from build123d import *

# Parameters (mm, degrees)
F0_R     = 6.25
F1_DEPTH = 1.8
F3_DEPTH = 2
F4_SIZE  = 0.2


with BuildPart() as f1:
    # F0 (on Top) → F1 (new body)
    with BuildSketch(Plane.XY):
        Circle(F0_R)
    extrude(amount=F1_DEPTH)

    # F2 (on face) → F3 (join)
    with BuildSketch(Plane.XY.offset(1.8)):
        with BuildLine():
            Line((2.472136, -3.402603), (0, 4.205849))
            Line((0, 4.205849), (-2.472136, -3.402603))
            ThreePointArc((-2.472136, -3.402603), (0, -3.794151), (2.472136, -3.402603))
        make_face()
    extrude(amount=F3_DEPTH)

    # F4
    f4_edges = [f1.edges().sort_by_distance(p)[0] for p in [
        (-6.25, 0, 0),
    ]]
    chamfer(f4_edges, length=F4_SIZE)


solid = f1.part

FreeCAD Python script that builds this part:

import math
import FreeCAD as App
import Part
import Sketcher

V = App.Vector
Q = App.Units.Quantity


def edges_at(feature, points):
    """Names of the edges that pass closest to the given points."""
    edges = feature.Shape.Edges
    near = lambda p: min(range(len(edges)), key=lambda i: edges[i].distToShape(Part.Vertex(*p))[0])
    return sorted({f"Edge{near(p) + 1}" for p in points})

doc = App.newDocument("Part")
body = doc.addObject("PartDesign::Body", "Body")

# Sketch on XY plane
sketch1 = body.newObject("Sketcher::SketchObject", "Sketch")
sketch1.AttachmentSupport = (doc.getObject("XY_Plane"), [""])
sketch1.MapMode = "FlatFace"
sketch1.addGeometry(Part.Circle(V(0, 0, 0), V(0, 0, 1), 6), False)
sketch1.addConstraint([
    Sketcher.Constraint("Coincident", 0, 3, -1, 1),
    Sketcher.Constraint("Diameter", 0, Q("12.5 mm")),
])
pad1 = body.newObject("PartDesign::Pad", "Pad")
pad1.Profile = sketch1
pad1.Length = 1.8

# Sketch on XY plane
sketch2 = body.newObject("Sketcher::SketchObject", "Sketch001")
sketch2.AttachmentSupport = (doc.getObject("XY_Plane"), [""])
sketch2.MapMode = "FlatFace"
sketch2.AttachmentOffset = App.Placement(V(0, 0, 1.8), App.Rotation())
sketch2.addGeometry([
    Part.LineSegment(V(2.5, -3.4, 0), V(0, 4.2, 0)),
    Part.LineSegment(V(0, 4.2, 0), V(-2.5, -3.4, 0)),
    Part.ArcOfCircle(Part.Circle(V(0, 4.2, 0), V(0, 0, 1), 8), math.radians(-108), math.radians(-72)),
], False)
sketch2.addConstraint([
    Sketcher.Constraint("Coincident", 0, 2, 1, 1),
    Sketcher.Constraint("Coincident", 1, 2, 2, 1),
    Sketcher.Constraint("Coincident", 2, 2, 0, 1),
    Sketcher.Constraint("Coincident", 0, 2, 2, 3),
    Sketcher.Constraint("Symmetric", 1, 2, 2, 2, -2),
    Sketcher.Constraint("Angle", 0, Q("108.000001 deg")),
    Sketcher.Constraint("Distance", 0, Q("8 mm")),
    Sketcher.Constraint("DistanceY", -1, 1, 0, 2, Q("4.205849 mm")),
])
pad2 = body.newObject("PartDesign::Pad", "Pad001")
pad2.Profile = sketch2
pad2.Length = 2
doc.recompute()

chamfer = body.newObject("PartDesign::Chamfer", "Chamfer")
chamfer.Base = (pad2, edges_at(pad2, [(-6.25, 0, 0)]))
chamfer.Size = 0.2

doc.recompute()
